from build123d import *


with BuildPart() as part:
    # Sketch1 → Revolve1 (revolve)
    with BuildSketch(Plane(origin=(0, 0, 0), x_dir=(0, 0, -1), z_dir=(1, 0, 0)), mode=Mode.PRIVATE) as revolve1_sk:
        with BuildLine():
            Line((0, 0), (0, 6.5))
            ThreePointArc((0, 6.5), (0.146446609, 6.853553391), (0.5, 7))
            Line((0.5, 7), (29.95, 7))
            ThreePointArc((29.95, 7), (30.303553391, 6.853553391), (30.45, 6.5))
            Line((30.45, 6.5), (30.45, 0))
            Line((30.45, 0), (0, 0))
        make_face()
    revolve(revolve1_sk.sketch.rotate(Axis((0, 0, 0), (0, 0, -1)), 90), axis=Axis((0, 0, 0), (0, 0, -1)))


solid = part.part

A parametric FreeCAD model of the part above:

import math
import FreeCAD as App
import Part
import Sketcher
Q = App.Units.Quantity

doc = App.newDocument("Part")
params = doc.addObject("Spreadsheet::Sheet", "Params")
for row, (alias, value) in enumerate([
    ("sketch1_radius", "0.5 mm"),
    ("sketch1_width", "6.5 mm"),
    ("sketch1_height", "30.45 mm"),
    ("revolution_angle", "360 deg"),
], start=1):
    params.set(f"A{row}", alias)
    params.set(f"B{row}", "=" + value)
    params.setAlias(f"B{row}", alias)

body = doc.addObject("PartDesign::Body", "Body")

sketch1 = body.newObject("Sketcher::SketchObject", "Sketch")
sketch1.AttachmentSupport = (doc.getObject("YZ_Plane"), [""])
sketch1.MapMode = "FlatFace"
sketch1.addGeometry([
    Part.LineSegment(App.Vector(6.5, 0, 0), App.Vector(0, 0, 0)),
    Part.LineSegment(App.Vector(0, 0, 0), App.Vector(0, -30.45, 0)),
    Part.LineSegment(App.Vector(0, -30.45, 0), App.Vector(6.5, -30.45, 0)),
    Part.ArcOfCircle(Part.Circle(App.Vector(6.5, -29.95, 0), App.Vector(0, 0, 1), 0.5), math.radians(-90), math.radians(0)),
    Part.LineSegment(App.Vector(7, -29.95, 0), App.Vector(7, -0.5, 0)),
    Part.ArcOfCircle(Part.Circle(App.Vector(6.5, -0.5, 0), App.Vector(0, 0, 1), 0.5), math.radians(0), math.radians(90)),
], False)
sketch1.addConstraint([
    Sketcher.Constraint("Coincident", 0, 2, 1, 1),
    Sketcher.Constraint("Coincident", 1, 2, 2, 1),
    Sketcher.Constraint("Tangent", 2, 2, 3, 1),
    Sketcher.Constraint("Tangent", 3, 2, 4, 1),
    Sketcher.Constraint("Tangent", 4, 2, 5, 1),
    Sketcher.Constraint("Tangent", 5, 2, 0, 1),
    Sketcher.Constraint("Horizontal", 0),
    Sketcher.Constraint("Vertical", 1),
    Sketcher.Constraint("Horizontal", 2),
    Sketcher.Constraint("Vertical", 4),
    Sketcher.Constraint("Coincident", 0, 2, -1, 1),
    Sketcher.Constraint("Equal", 3, 5),
    Sketcher.Constraint("Radius", 3, Q("0.5 mm")),
    Sketcher.Constraint("DistanceX", 0, 2, 0, 1, Q("6.5 mm")),
    Sketcher.Constraint("DistanceY", 1, 2, 1, 1, Q("30.45 mm")),
])
sketch1.setExpression("Constraints[12]", "Params.sketch1_radius")
sketch1.setExpression("Constraints[13]", "Params.sketch1_width")
sketch1.setExpression("Constraints[14]", "Params.sketch1_height")
revolution = body.newObject("PartDesign::Revolution", "Revolution")
revolution.Profile = sketch1
revolution.ReferenceAxis = (sketch1, ["V_Axis"])
revolution.setExpression("Angle", "Params.revolution_angle")

doc.recompute()
